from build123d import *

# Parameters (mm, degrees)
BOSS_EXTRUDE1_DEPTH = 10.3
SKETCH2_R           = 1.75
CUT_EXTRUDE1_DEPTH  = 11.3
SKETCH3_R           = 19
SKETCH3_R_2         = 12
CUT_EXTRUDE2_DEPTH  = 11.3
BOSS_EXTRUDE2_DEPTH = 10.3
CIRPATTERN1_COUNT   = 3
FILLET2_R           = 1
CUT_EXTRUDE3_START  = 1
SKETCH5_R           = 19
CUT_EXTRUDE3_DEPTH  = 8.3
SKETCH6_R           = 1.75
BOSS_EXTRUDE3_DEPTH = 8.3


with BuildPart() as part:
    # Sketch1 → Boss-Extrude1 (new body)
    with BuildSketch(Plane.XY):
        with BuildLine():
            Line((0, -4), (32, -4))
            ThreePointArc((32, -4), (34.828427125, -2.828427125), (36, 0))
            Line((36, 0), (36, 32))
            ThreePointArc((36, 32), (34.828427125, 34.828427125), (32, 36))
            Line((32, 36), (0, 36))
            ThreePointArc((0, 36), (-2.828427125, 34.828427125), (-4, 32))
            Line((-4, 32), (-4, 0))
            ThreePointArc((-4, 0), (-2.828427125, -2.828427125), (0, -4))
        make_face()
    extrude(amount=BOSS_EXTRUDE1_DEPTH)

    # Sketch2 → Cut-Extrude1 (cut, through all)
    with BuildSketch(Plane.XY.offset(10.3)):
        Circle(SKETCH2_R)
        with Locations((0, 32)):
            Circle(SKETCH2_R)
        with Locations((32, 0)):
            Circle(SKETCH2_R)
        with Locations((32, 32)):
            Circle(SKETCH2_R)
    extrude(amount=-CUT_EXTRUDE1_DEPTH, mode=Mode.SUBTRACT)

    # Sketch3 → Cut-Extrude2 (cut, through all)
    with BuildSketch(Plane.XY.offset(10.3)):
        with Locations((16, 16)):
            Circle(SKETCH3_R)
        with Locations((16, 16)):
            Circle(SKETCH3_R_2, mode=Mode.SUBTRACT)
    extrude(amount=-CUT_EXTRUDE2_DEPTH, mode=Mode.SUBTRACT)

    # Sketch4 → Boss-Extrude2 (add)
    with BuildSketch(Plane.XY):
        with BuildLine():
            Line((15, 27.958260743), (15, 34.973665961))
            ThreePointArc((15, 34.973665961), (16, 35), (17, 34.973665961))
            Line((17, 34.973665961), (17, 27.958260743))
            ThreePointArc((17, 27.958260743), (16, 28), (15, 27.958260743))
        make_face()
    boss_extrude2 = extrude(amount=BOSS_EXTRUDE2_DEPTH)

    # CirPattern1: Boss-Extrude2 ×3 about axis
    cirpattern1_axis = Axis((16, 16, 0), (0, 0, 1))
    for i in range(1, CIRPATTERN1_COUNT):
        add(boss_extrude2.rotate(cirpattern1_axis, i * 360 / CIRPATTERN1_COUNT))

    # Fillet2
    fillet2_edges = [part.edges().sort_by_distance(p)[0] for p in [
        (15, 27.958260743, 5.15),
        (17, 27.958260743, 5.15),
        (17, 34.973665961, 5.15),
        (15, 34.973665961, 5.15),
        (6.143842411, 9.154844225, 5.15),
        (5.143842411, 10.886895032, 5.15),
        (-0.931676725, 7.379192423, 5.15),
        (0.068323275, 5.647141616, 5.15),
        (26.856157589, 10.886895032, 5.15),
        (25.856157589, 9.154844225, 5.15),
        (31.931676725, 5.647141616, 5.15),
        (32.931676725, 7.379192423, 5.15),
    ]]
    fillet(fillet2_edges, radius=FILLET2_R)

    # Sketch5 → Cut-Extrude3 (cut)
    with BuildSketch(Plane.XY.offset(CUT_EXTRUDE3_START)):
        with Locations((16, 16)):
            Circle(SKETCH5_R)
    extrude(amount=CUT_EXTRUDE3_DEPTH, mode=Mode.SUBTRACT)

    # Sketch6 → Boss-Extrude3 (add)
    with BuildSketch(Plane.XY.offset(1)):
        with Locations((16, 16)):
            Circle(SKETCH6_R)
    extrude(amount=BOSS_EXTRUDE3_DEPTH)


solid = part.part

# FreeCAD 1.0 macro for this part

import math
import FreeCAD as App
import Part
import Sketcher


def edges_at(feature, points):
    """Names of the edges that pass closest to the given points."""
    edges = feature.Shape.Edges
    near = lambda p: min(range(len(edges)), key=lambda i: edges[i].distToShape(Part.Vertex(*p))[0])
    return sorted({f"Edge{near(p) + 1}" for p in points})

doc = App.newDocument("Part")
body = doc.addObject("PartDesign::Body", "Body")
body.AllowCompound = True

# Sketch on XY plane
sketch1 = body.newObject("Sketcher::SketchObject", "Sketch")
sketch1.AttachmentSupport = (doc.getObject("XY_Plane"), [""])
sketch1.MapMode = "FlatFace"
sketch1.addGeometry(Part.LineSegment(App.Vector(0, -4, 0), App.Vector(32, -4, 0)), False)
sketch1.addGeometry(Part.ArcOfCircle(Part.Circle(App.Vector(32, 0, 0), App.Vector(0, 0, 1), 4), math.radians(-90), math.radians(0)), False)
sketch1.addGeometry(Part.LineSegment(App.Vector(36, 0, 0), App.Vector(36, 32, 0)), False)
sketch1.addGeometry(Part.ArcOfCircle(Part.Circle(App.Vector(32, 32, 0), App.Vector(0, 0, 1), 4), math.radians(0), math.radians(90)), False)
sketch1.addGeometry(Part.LineSegment(App.Vector(32, 36, 0), App.Vector(0, 36, 0)), False)
sketch1.addGeometry(Part.ArcOfCircle(Part.Circle(App.Vector(0, 32, 0), App.Vector(0, 0, 1), 4), math.radians(90), math.radians(180)), False)
sketch1.addGeometry(Part.LineSegment(App.Vector(-4, 32, 0), App.Vector(-4, 0, 0)), False)
sketch1.addGeometry(Part.ArcOfCircle(Part.Circle(App.Vector(0, 0, 0), App.Vector(0, 0, 1), 4), math.radians(180), math.radians(270)), False)
sketch1.addConstraint(Sketcher.Constraint("Tangent", 0, 2, 1, 1))
sketch1.addConstraint(Sketcher.Constraint("Tangent", 1, 2, 2, 1))
sketch1.addConstraint(Sketcher.Constraint("Tangent", 2, 2, 3, 1))
sketch1.addConstraint(Sketcher.Constraint("Tangent", 3, 2, 4, 1))
sketch1.addConstraint(Sketcher.Constraint("Tangent", 4, 2, 5, 1))
sketch1.addConstraint(Sketcher.Constraint("Tangent", 5, 2, 6, 1))
sketch1.addConstraint(Sketcher.Constraint("Tangent", 6, 2, 7, 1))
sketch1.addConstraint(Sketcher.Constraint("Tangent", 7, 2, 0, 1))
sketch1.addConstraint(Sketcher.Constraint("Horizontal", 0))
sketch1.addConstraint(Sketcher.Constraint("Vertical", 2))
sketch1.addConstraint(Sketcher.Constraint("Horizontal", 4))
sketch1.addConstraint(Sketcher.Constraint("Vertical", 6))
sketch1.addConstraint(Sketcher.Constraint("Coincident", 7, 3, -1, 1))
sketch1.addConstraint(Sketcher.Constraint("Equal", 1, 3))
sketch1.addConstraint(Sketcher.Constraint("Equal", 3, 5))
sketch1.addConstraint(Sketcher.Constraint("Equal", 5, 7))
sketch1.addConstraint(Sketcher.Constraint("Equal", 4, 2))
sketch1.addConstraint(Sketcher.Constraint("Radius", 1, 4.0))
sketch1.addConstraint(Sketcher.Constraint("DistanceX", 0, 1, 0, 2, 32.0))
pad1 = body.newObject("PartDesign::Pad", "Pad")
pad1.Profile = sketch1
pad1.Length = 10.3

# Sketch on XY plane
sketch2 = body.newObject("Sketcher::SketchObject", "Sketch001")
sketch2.AttachmentSupport = (doc.getObject("XY_Plane"), [""])
sketch2.MapMode = "FlatFace"
sketch2.AttachmentOffset = App.Placement(App.Vector(0, 0, 10.3), App.Rotation())
sketch2.addGeometry(Part.Circle(App.Vector(0, 0, 0), App.Vector(0, 0, 1), 1.8), False)
sketch2.addGeometry(Part.Circle(App.Vector(0, 32, 0), App.Vector(0, 0, 1), 1.8), False)
sketch2.addGeometry(Part.Circle(App.Vector(32, 0, 0), App.Vector(0, 0, 1), 1.8), False)
sketch2.addGeometry(Part.Circle(App.Vector(32, 32, 0), App.Vector(0, 0, 1), 1.8), False)
sketch2.addConstraint(Sketcher.Constraint("Coincident", 0, 3, -1, 1))
sketch2.addConstraint(Sketcher.Constraint("Equal", 0, 1))
sketch2.addConstraint(Sketcher.Constraint("Equal", 1, 2))
sketch2.addConstraint(Sketcher.Constraint("Equal", 2, 3))
sketch2.addConstraint(Sketcher.Constraint("PointOnObject", 1, 3, -2))
sketch2.addConstraint(Sketcher.Constraint("PointOnObject", 2, 3, -1))
sketch2.addConstraint(Sketcher.Constraint("Horizontal", 1, 3, 3, 3))
sketch2.addConstraint(Sketcher.Constraint("Vertical", 2, 3, 3, 3))
sketch2.addConstraint(Sketcher.Constraint("Diameter", 0, 3.5))
sketch2.addConstraint(Sketcher.Constraint("DistanceY", -1, 1, 1, 3, 32.0))
sketch2.addConstraint(Sketcher.Constraint("DistanceX", -1, 1, 2, 3, 32.0))
pocket1 = body.newObject("PartDesign::Pocket", "Pocket")
pocket1.Profile = sketch2
pocket1.Type = "ThroughAll"

# Sketch on XY plane
sketch3 = body.newObject("Sketcher::SketchObject", "Sketch002")
sketch3.AttachmentSupport = (doc.getObject("XY_Plane"), [""])
sketch3.MapMode = "FlatFace"
sketch3.AttachmentOffset = App.Placement(App.Vector(0, 0, 10.3), App.Rotation())
sketch3.addGeometry(Part.Circle(App.Vector(16, 16, 0), App.Vector(0, 0, 1), 19), False)
sketch3.addGeometry(Part.Circle(App.Vector(16, 16, 0), App.Vector(0, 0, 1), 12), False)
sketch3.addConstraint(Sketcher.Constraint("Coincident", 1, 3, 0, 3))
sketch3.addConstraint(Sketcher.Constraint("Diameter", 0, 38.0))
sketch3.addConstraint(Sketcher.Constraint("Diameter", 1, 24.0))
sketch3.addConstraint(Sketcher.Constraint("DistanceX", -1, 1, 0, 3, 16.0))
sketch3.addConstraint(Sketcher.Constraint("DistanceY", -1, 1, 0, 3, 16.0))
pocket2 = body.newObject("PartDesign::Pocket", "Pocket001")
pocket2.Profile = sketch3
pocket2.Type = "ThroughAll"

# Sketch on XY plane
sketch4 = body.newObject("Sketcher::SketchObject", "Sketch003")
sketch4.AttachmentSupport = (doc.getObject("XY_Plane"), [""])
sketch4.MapMode = "FlatFace"
sketch4.addGeometry(Part.LineSegment(App.Vector(15, 35, 0), App.Vector(15, 28, 0)), False)
sketch4.addGeometry(Part.ArcOfCircle(Part.Circle(App.Vector(16, 16, 0), App.Vector(0, 0, 1), 12), math.radians(85.22), math.radians(94.78)), False)
sketch4.addGeometry(Part.LineSegment(App.Vector(17, 28, 0), App.Vector(17, 35, 0)), False)
sketch4.addGeometry(Part.ArcOfCircle(Part.Circle(App.Vector(16, 16, 0), App.Vector(0, 0, 1), 19), math.radians(86.98), math.radians(93.02)), False)
sketch4.addConstraint(Sketcher.Constraint("Coincident", 0, 2, 1, 2))
sketch4.addConstraint(Sketcher.Constraint("Coincident", 1, 1, 2, 1))
sketch4.addConstraint(Sketcher.Constraint("Coincident", 2, 2, 3, 1))
sketch4.addConstraint(Sketcher.Constraint("Coincident", 3, 2, 0, 1))
sketch4.addConstraint(Sketcher.Constraint("Vertical", 0))
sketch4.addConstraint(Sketcher.Constraint("Vertical", 2))
sketch4.addConstraint(Sketcher.Constraint("Coincident", 3, 3, 1, 3))
sketch4.addConstraint(Sketcher.Constraint("Horizontal", 0, 2, 1, 1))
sketch4.addConstraint(Sketcher.Constraint("Radius", 1, 12.0))
sketch4.addConstraint(Sketcher.Constraint("Radius", 3, 19.0))
sketch4.addConstraint(Sketcher.Constraint("DistanceX", -1, 1, 1, 3, 16.0))
sketch4.addConstraint(Sketcher.Constraint("DistanceY", -1, 1, 1, 3, 16.0))
sketch4.addConstraint(Sketcher.Constraint("DistanceX", -1, 1, 0, 2, 15.0))
pad2 = body.newObject("PartDesign::Pad", "Pad001")
pad2.Profile = sketch4
pad2.Length = 10.3
doc.recompute()

datumline = body.newObject("PartDesign::Line", "DatumLine")
datumline.Placement = App.Placement(App.Vector(16, 16, 0), App.Rotation(App.Vector(0, 0, 1), App.Vector(0, 0, 1)))
polarpattern = body.newObject("PartDesign::PolarPattern", "PolarPattern")
polarpattern.Originals = [pad2]
polarpattern.Axis = (datumline, [""])
polarpattern.Angle = 360
polarpattern.Occurrences = 3
body.Tip = polarpattern
doc.recompute()

fillet = body.newObject("PartDesign::Fillet", "Fillet")
fillet.Base = (polarpattern, edges_at(polarpattern, [
    (15, 27.958, 5.15),
    (17, 27.958, 5.15),
    (17, 34.974, 5.15),
    (15, 34.974, 5.15),
    (6.144, 9.155, 5.15),
    (5.144, 10.887, 5.15),
    (-0.932, 7.379, 5.15),
    (0.068, 5.647, 5.15),
    (26.856, 10.887, 5.15),
    (25.856, 9.155, 5.15),
    (31.932, 5.647, 5.15),
    (32.932, 7.379, 5.15),
]))
fillet.Radius = 1

# Sketch on XY plane
sketch5 = body.newObject("Sketcher::SketchObject", "Sketch004")
sketch5.AttachmentSupport = (doc.getObject("XY_Plane"), [""])
sketch5.MapMode = "FlatFace"
sketch5.AttachmentOffset = App.Placement(App.Vector(0, 0, 1), App.Rotation())
sketch5.addGeometry(Part.Circle(App.Vector(16, 16, 0), App.Vector(0, 0, 1), 19), False)
sketch5.addConstraint(Sketcher.Constraint("Diameter", 0, 38.0))
sketch5.addConstraint(Sketcher.Constraint("DistanceX", -1, 1, 0, 3, 16.0))
sketch5.addConstraint(Sketcher.Constraint("DistanceY", -1, 1, 0, 3, 16.0))
pocket3 = body.newObject("PartDesign::Pocket", "Pocket002")
pocket3.Profile = sketch5
pocket3.Length = 8.3
pocket3.Reversed = True

# Sketch on XY plane
sketch6 = body.newObject("Sketcher::SketchObject", "Sketch005")
sketch6.AttachmentSupport = (doc.getObject("XY_Plane"), [""])
sketch6.MapMode = "FlatFace"
sketch6.AttachmentOffset = App.Placement(App.Vector(0, 0, 1), App.Rotation())
sketch6.addGeometry(Part.Circle(App.Vector(16, 16, 0), App.Vector(0, 0, 1), 1.8), False)
sketch6.addConstraint(Sketcher.Constraint("Diameter", 0, 3.5))
sketch6.addConstraint(Sketcher.Constraint("DistanceX", -1, 1, 0, 3, 16.0))
sketch6.addConstraint(Sketcher.Constraint("DistanceY", -1, 1, 0, 3, 16.0))
pad3 = body.newObject("PartDesign::Pad", "Pad002")
pad3.Profile = sketch6
pad3.Length = 8.3

doc.recompute()
